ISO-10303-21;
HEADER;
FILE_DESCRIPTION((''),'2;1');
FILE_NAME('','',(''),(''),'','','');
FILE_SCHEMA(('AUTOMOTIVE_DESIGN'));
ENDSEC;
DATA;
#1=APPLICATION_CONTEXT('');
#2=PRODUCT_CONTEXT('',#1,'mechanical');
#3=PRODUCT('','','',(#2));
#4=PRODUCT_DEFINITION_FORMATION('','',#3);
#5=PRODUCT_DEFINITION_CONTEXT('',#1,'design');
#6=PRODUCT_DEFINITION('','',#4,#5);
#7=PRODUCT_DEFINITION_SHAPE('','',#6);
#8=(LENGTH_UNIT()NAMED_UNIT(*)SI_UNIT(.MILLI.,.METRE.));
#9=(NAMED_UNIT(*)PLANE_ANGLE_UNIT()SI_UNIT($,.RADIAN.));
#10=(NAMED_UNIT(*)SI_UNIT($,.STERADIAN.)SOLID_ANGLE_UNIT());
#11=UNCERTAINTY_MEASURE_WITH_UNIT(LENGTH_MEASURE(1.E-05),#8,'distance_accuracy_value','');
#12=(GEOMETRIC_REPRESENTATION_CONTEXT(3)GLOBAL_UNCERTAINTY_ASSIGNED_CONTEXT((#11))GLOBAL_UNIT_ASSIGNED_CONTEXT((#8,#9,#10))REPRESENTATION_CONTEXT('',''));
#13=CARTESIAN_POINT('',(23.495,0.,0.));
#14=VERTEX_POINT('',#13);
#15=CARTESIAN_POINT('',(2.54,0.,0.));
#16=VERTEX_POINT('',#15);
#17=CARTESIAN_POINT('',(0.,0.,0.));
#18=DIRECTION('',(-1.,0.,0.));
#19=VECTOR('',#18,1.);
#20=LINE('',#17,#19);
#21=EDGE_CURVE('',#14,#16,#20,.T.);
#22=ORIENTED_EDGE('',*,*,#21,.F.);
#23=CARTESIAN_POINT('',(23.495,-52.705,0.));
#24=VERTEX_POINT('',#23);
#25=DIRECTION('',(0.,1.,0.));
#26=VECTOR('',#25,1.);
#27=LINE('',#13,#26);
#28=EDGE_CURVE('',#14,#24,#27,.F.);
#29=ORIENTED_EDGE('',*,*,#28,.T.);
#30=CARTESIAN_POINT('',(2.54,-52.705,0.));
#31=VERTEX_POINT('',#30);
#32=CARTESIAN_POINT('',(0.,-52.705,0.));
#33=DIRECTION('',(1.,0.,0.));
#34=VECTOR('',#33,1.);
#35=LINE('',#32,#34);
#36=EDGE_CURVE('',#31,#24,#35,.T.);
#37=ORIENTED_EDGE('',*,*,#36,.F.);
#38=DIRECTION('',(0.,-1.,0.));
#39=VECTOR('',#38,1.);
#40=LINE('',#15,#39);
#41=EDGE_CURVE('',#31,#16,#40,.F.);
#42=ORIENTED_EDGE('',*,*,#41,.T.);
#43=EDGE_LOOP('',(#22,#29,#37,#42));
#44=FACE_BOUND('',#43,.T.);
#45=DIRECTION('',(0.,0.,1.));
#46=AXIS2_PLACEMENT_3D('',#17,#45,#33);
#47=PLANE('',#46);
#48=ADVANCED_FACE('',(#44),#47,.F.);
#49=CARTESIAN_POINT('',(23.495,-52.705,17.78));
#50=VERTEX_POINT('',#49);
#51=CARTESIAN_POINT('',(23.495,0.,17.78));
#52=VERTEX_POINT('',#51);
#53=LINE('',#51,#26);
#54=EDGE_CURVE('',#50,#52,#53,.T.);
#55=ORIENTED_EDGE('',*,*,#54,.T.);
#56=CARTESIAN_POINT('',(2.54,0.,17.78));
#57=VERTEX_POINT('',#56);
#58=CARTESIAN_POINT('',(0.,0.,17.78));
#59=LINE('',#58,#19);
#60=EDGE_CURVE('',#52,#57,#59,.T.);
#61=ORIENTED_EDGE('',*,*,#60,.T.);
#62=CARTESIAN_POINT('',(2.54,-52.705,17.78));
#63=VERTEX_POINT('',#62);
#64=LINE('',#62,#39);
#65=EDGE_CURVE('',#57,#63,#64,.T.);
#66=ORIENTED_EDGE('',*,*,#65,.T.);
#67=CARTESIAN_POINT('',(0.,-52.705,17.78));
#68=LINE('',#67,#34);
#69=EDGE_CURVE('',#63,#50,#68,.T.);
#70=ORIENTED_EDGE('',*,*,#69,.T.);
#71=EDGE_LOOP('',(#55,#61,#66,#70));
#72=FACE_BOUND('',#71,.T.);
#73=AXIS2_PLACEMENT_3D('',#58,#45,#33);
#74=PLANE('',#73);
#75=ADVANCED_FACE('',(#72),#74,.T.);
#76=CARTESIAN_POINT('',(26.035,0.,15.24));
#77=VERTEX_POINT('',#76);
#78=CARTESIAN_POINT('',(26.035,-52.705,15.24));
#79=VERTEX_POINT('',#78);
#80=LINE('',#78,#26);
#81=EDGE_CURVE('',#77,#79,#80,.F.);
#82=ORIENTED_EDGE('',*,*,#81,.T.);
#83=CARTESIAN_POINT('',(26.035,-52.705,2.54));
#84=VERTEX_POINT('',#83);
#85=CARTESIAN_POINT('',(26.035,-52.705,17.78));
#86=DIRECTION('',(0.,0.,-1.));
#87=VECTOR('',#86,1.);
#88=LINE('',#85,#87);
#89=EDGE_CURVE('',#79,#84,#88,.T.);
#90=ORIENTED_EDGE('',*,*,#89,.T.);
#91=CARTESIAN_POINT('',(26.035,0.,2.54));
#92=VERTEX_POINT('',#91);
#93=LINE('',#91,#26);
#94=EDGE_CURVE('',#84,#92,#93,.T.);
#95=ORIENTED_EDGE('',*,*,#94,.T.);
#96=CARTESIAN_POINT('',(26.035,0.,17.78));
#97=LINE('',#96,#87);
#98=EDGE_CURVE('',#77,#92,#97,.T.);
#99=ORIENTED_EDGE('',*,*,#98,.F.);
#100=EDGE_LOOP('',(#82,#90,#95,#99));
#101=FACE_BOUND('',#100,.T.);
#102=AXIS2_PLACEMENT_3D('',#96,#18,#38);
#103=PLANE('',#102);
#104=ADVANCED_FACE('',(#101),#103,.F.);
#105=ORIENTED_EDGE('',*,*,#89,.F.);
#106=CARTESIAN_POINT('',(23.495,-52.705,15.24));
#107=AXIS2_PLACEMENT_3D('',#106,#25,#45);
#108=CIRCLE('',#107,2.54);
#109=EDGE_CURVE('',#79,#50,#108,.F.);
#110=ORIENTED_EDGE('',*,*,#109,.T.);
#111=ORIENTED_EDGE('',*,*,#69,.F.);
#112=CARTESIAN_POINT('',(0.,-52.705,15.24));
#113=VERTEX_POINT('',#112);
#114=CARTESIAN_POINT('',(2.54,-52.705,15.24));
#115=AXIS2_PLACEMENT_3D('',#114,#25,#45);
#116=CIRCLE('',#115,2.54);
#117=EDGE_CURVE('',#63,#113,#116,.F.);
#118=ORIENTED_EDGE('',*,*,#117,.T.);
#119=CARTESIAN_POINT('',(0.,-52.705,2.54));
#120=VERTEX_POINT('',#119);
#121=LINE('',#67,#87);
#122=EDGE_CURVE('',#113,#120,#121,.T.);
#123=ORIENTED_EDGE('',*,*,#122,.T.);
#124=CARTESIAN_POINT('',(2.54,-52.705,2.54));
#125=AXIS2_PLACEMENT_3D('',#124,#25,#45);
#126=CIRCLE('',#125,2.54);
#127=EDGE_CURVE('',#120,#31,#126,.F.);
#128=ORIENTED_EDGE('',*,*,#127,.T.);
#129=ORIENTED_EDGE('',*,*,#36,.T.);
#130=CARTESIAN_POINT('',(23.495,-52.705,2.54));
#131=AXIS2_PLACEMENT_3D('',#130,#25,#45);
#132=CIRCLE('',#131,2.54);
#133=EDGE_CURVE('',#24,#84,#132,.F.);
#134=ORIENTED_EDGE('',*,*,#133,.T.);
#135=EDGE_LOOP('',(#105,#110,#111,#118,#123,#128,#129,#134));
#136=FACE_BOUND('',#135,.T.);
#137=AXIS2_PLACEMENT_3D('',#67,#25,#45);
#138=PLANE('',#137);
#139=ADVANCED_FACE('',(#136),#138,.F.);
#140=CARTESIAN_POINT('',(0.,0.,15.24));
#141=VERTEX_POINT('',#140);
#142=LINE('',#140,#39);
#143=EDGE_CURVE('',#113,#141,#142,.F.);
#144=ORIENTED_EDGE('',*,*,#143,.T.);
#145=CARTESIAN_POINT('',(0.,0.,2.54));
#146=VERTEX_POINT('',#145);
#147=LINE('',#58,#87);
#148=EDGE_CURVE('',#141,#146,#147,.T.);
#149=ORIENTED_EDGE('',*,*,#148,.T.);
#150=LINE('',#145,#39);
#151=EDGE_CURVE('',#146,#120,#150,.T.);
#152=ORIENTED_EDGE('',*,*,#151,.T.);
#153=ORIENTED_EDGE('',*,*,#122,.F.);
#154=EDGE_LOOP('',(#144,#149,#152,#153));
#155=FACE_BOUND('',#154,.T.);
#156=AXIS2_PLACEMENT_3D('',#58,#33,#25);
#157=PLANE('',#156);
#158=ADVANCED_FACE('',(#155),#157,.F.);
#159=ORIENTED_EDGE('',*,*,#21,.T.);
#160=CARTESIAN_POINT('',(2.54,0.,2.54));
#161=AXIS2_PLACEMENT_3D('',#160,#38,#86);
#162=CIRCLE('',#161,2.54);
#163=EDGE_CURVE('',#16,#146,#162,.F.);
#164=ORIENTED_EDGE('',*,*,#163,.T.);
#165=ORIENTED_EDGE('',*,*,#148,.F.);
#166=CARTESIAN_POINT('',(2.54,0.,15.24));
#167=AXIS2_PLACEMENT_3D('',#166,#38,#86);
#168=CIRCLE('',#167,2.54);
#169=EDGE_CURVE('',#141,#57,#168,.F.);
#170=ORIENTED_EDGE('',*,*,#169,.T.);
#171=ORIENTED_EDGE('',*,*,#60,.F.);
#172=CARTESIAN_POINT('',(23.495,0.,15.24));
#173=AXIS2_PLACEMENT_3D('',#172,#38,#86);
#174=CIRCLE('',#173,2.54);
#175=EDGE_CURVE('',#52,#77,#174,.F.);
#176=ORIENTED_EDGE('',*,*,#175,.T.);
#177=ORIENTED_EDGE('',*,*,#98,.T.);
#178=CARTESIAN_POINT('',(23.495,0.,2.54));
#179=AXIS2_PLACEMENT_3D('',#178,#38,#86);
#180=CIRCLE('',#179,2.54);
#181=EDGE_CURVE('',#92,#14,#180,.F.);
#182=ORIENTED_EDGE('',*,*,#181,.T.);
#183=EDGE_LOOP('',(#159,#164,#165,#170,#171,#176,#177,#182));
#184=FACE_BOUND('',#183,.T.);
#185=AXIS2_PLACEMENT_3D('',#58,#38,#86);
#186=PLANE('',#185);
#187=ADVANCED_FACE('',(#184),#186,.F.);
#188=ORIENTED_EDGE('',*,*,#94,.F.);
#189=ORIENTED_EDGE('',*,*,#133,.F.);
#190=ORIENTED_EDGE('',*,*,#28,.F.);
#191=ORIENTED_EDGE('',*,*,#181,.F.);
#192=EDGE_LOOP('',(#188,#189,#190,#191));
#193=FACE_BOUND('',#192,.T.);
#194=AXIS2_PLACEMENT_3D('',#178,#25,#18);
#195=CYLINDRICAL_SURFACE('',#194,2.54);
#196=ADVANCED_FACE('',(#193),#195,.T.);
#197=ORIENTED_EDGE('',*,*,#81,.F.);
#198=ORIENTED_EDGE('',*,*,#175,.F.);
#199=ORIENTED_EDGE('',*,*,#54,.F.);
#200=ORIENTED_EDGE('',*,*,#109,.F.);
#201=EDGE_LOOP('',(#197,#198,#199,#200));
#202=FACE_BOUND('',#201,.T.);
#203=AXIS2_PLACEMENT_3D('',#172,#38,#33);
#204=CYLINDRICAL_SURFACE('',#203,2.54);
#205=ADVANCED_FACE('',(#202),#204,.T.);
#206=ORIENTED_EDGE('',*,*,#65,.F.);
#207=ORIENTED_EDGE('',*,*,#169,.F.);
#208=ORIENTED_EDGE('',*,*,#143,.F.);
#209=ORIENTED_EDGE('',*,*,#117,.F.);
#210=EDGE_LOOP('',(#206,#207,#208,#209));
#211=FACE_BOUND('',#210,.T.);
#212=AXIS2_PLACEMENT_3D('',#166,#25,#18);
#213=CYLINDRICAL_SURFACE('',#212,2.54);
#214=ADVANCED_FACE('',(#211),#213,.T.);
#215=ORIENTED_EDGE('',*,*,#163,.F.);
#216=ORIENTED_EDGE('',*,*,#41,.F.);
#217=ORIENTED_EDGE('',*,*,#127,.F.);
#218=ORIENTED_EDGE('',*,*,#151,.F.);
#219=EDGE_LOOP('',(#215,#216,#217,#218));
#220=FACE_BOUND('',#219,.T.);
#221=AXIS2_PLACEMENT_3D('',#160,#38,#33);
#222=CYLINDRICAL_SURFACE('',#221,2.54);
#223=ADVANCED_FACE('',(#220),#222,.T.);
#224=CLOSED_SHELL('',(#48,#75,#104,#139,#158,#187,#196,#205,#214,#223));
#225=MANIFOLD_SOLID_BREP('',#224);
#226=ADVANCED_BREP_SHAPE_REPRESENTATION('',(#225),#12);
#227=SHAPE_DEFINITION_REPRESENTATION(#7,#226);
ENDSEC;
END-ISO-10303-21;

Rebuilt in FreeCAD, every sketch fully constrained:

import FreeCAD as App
import Part
import Sketcher
from FreeCAD import Vector
Q = App.Units.Quantity


def edges_at(feature, points):
    """Names of the edges that pass closest to the given points."""
    edges = feature.Shape.Edges
    near = lambda p: min(range(len(edges)), key=lambda i: edges[i].distToShape(Part.Vertex(*p))[0])
    return sorted({f"Edge{near(p) + 1}" for p in points})

doc = App.newDocument("Part")
body = doc.addObject("PartDesign::Body", "Body")

sketch1 = doc.addObject("Sketcher::SketchObject", "Sketch")
body.addObject(sketch1)
sketch1.AttachmentSupport = (doc.XY_Plane, [""])
sketch1.MapMode = "FlatFace"
sketch1.addGeometry([
    Part.LineSegment(Vector(0, 0, 0), Vector(0, -53, 0)),
    Part.LineSegment(Vector(0, -53, 0), Vector(26, -53, 0)),
    Part.LineSegment(Vector(26, -53, 0), Vector(26, 0, 0)),
    Part.LineSegment(Vector(26, 0, 0), Vector(0, 0, 0)),
], False)
sketch1.addConstraint([
    Sketcher.Constraint("Coincident", 0, 2, 1, 1),
    Sketcher.Constraint("Coincident", 1, 2, 2, 1),
    Sketcher.Constraint("Coincident", 2, 2, 3, 1),
    Sketcher.Constraint("Coincident", 3, 2, 0, 1),
    Sketcher.Constraint("Vertical", 0),
    Sketcher.Constraint("Horizontal", 1),
    Sketcher.Constraint("Vertical", 2),
    Sketcher.Constraint("Horizontal", 3),
    Sketcher.Constraint("Coincident", 3, 2, -1, 1),
    Sketcher.Constraint("DistanceX", 1, 1, 1, 2, Q("1.025 in")),
    Sketcher.Constraint("DistanceY", 0, 2, 0, 1, Q("2.075 in")),
])
pad1 = doc.addObject("PartDesign::Pad", "Pad")
body.addObject(pad1)
pad1.Profile = sketch1
pad1.Length = Q("0.7 in")
doc.recompute()

fillet = doc.addObject("PartDesign::Fillet", "Fillet")
body.addObject(fillet)
fillet.Base = (pad1, edges_at(pad1, [
    (26.035, -26.352, 17.78),
    (0, -26.352, 17.78),
    (26.035, -26.352, 0),
    (0, -26.352, 0),
]))
fillet.Radius = Q("0.1 in")

doc.recompute()
